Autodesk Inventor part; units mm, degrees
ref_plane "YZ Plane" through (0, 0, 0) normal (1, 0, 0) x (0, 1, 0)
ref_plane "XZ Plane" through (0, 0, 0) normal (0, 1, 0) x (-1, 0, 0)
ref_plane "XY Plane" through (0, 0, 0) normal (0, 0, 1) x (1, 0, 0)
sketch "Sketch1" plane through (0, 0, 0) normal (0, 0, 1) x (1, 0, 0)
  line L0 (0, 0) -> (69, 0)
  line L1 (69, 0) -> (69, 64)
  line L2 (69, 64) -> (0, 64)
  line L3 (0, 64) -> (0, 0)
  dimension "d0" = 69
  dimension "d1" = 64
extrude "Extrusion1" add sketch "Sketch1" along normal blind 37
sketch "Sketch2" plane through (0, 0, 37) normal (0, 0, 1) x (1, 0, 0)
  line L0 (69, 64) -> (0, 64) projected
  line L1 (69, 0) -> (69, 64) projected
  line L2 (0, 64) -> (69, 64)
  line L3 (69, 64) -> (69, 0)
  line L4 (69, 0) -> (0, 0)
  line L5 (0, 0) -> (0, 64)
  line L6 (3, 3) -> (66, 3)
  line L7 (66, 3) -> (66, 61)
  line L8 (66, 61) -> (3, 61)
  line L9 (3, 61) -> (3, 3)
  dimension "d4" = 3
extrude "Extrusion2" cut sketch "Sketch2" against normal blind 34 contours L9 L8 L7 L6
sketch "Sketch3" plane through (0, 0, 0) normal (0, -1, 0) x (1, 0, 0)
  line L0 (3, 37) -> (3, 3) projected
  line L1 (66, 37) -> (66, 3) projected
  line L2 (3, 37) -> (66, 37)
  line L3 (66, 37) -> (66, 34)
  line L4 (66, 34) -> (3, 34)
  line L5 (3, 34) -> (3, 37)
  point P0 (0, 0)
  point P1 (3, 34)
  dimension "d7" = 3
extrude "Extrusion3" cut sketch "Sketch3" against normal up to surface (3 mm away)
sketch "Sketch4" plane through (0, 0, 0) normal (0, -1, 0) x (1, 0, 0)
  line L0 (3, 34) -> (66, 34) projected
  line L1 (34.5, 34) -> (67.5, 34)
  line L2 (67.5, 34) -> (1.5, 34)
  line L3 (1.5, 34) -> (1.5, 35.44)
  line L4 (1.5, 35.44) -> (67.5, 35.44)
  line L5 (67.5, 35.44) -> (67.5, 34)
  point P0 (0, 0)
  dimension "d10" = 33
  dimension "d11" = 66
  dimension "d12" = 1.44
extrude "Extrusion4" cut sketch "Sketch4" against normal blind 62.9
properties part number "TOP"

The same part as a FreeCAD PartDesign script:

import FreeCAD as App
import Part
import Sketcher
from FreeCAD import Vector


def add_polygon(sketch, points):
    """Adds a closed chain of lines whose ends are joined by coincident constraints."""
    first, n = sketch.GeometryCount, len(points)
    for a, b in zip(points, points[1:] + points[:1]):
        sketch.addGeometry(Part.LineSegment(App.Vector(*a, 0), App.Vector(*b, 0)), False)
    for i in range(n):
        sketch.addConstraint(Sketcher.Constraint("Coincident", first + i, 2, first + (i + 1) % n, 1))

doc = App.newDocument("Part")
body = doc.addObject("PartDesign::Body", "Body")

# Sketch on XY plane
sketch1 = body.newObject("Sketcher::SketchObject", "Sketch")
sketch1.AttachmentSupport = (doc.getObject("XY_Plane"), [""])
sketch1.MapMode = "FlatFace"
add_polygon(sketch1, [(0, 64), (0, 0), (69, 0), (69, 64)])  # lines 0-3
sketch1.addConstraint(Sketcher.Constraint("Vertical", 0))
sketch1.addConstraint(Sketcher.Constraint("Horizontal", 1))
sketch1.addConstraint(Sketcher.Constraint("Vertical", 2))
sketch1.addConstraint(Sketcher.Constraint("Horizontal", 3))
sketch1.addConstraint(Sketcher.Constraint("Coincident", 0, 2, -1, 1))
sketch1.addConstraint(Sketcher.Constraint("DistanceX", 1, 1, 1, 2, 69.0))
sketch1.addConstraint(Sketcher.Constraint("DistanceY", 0, 2, 0, 1, 64.0))
pad1 = body.newObject("PartDesign::Pad", "Pad")
pad1.Profile = sketch1
pad1.Length = 37

# Sketch on XY plane
sketch2 = body.newObject("Sketcher::SketchObject", "Sketch001")
sketch2.AttachmentSupport = (doc.getObject("XY_Plane"), [""])
sketch2.MapMode = "FlatFace"
sketch2.AttachmentOffset = App.Placement(Vector(0, 0, 37), App.Rotation())
add_polygon(sketch2, [(3, 61), (3, 3), (66, 3), (66, 61)])  # lines 0-3
sketch2.addConstraint(Sketcher.Constraint("Vertical", 0))
sketch2.addConstraint(Sketcher.Constraint("Horizontal", 1))
sketch2.addConstraint(Sketcher.Constraint("Vertical", 2))
sketch2.addConstraint(Sketcher.Constraint("Horizontal", 3))
sketch2.addConstraint(Sketcher.Constraint("DistanceX", -1, 1, 0, 2, 3.0))
sketch2.addConstraint(Sketcher.Constraint("DistanceY", -1, 1, 0, 2, 3.0))
sketch2.addConstraint(Sketcher.Constraint("DistanceX", 1, 1, 1, 2, 63.0))
sketch2.addConstraint(Sketcher.Constraint("DistanceY", 0, 2, 0, 1, 58.0))
pocket1 = body.newObject("PartDesign::Pocket", "Pocket")
pocket1.Profile = sketch2
pocket1.Length = 34

# Sketch on XZ plane
sketch3 = body.newObject("Sketcher::SketchObject", "Sketch002")
sketch3.AttachmentSupport = (doc.getObject("XZ_Plane"), [""])
sketch3.MapMode = "FlatFace"
add_polygon(sketch3, [(66, 37), (3, 37), (3, 34), (66, 34)])  # lines 0-3
sketch3.addConstraint(Sketcher.Constraint("Horizontal", 0))
sketch3.addConstraint(Sketcher.Constraint("Vertical", 1))
sketch3.addConstraint(Sketcher.Constraint("Horizontal", 2))
sketch3.addConstraint(Sketcher.Constraint("Vertical", 3))
sketch3.addConstraint(Sketcher.Constraint("DistanceY", 1, 2, 1, 1, 3.0))
sketch3.addConstraint(Sketcher.Constraint("DistanceX", -1, 1, 0, 2, 3.0))
sketch3.addConstraint(Sketcher.Constraint("DistanceX", 0, 2, 0, 1, 63.0))
sketch3.addConstraint(Sketcher.Constraint("DistanceY", -1, 1, 0, 2, 37.0))
pocket2 = body.newObject("PartDesign::Pocket", "Pocket001")
pocket2.Profile = sketch3
pocket2.Length = 3

# Sketch on XZ plane
sketch4 = body.newObject("Sketcher::SketchObject", "Sketch003")
sketch4.AttachmentSupport = (doc.getObject("XZ_Plane"), [""])
sketch4.MapMode = "FlatFace"
add_polygon(sketch4, [(1.5, 34), (67.5, 34), (67.5, 35.4), (1.5, 35.4)])  # lines 0-3
sketch4.addConstraint(Sketcher.Constraint("Horizontal", 0))
sketch4.addConstraint(Sketcher.Constraint("Vertical", 1))
sketch4.addConstraint(Sketcher.Constraint("Horizontal", 2))
sketch4.addConstraint(Sketcher.Constraint("Vertical", 3))
sketch4.addConstraint(Sketcher.Constraint("DistanceX", 0, 1, 0, 2, 66.0))
sketch4.addConstraint(Sketcher.Constraint("DistanceY", 1, 1, 1, 2, 1.44))
sketch4.addConstraint(Sketcher.Constraint("DistanceY", -1, 1, 0, 2, 34.0))
sketch4.addConstraint(Sketcher.Constraint("DistanceX", -1, 1, 0, 2, 67.5))
pocket3 = body.newObject("PartDesign::Pocket", "Pocket002")
pocket3.Profile = sketch4
pocket3.Length = 62.9

doc.recompute()
